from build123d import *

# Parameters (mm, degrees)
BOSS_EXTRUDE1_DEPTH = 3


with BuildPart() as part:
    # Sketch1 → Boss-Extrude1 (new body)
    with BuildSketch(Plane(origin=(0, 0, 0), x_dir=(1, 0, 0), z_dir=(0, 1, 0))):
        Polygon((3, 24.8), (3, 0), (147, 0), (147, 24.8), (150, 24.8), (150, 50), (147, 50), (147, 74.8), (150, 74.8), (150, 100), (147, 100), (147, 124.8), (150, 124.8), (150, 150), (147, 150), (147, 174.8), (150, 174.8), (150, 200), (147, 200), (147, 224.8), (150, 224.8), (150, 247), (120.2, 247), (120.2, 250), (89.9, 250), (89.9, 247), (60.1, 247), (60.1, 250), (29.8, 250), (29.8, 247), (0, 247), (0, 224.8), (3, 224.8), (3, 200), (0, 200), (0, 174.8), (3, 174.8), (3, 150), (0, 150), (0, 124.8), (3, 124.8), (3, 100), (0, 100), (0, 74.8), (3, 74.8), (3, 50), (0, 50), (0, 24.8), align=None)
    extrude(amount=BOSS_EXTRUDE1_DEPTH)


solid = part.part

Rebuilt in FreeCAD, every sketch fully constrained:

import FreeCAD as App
import Part
import Sketcher


def add_polygon(sketch, points):
    """Adds a closed chain of lines whose ends are joined by coincident constraints."""
    first, n = sketch.GeometryCount, len(points)
    for a, b in zip(points, points[1:] + points[:1]):
        sketch.addGeometry(Part.LineSegment(App.Vector(*a, 0), App.Vector(*b, 0)), False)
    for i in range(n):
        sketch.addConstraint(Sketcher.Constraint("Coincident", first + i, 2, first + (i + 1) % n, 1))

doc = App.newDocument("Part")
body = doc.addObject("PartDesign::Body", "Body")

sketch1 = body.newObject("Sketcher::SketchObject", "Sketch")
sketch1.AttachmentSupport = (doc.getObject("XZ_Plane"), [""])
sketch1.MapMode = "FlatFace"
add_polygon(sketch1, [(3, -24.8), (3, 0), (147, 0), (147, -24.8), (150, -24.8), (150, -50), (147, -50), (147, -74.8), (150, -74.8), (150, -100), (147, -100), (147, -124.8), (150, -124.8), (150, -150), (147, -150), (147, -174.8), (150, -174.8), (150, -200), (147, -200), (147, -224.8), (150, -224.8), (150, -247), (120.2, -247), (120.2, -250), (89.9, -250), (89.9, -247), (60.1, -247), (60.1, -250), (29.8, -250), (29.8, -247), (0, -247), (0, -224.8), (3, -224.8), (3, -200), (0, -200), (0, -174.8), (3, -174.8), (3, -150), (0, -150), (0, -124.8), (3, -124.8), (3, -100), (0, -100), (0, -74.8), (3, -74.8), (3, -50), (0, -50), (0, -24.8)])
sketch1.addConstraint([
    Sketcher.Constraint("Vertical", 0),
    Sketcher.Constraint("Horizontal", 1),
    Sketcher.Constraint("Vertical", 2),
    Sketcher.Constraint("Horizontal", 3),
    Sketcher.Constraint("Vertical", 4),
    Sketcher.Constraint("Horizontal", 5),
    Sketcher.Constraint("Vertical", 6),
    Sketcher.Constraint("Horizontal", 7),
    Sketcher.Constraint("Vertical", 8),
    Sketcher.Constraint("Horizontal", 9),
    Sketcher.Constraint("Vertical", 10),
    Sketcher.Constraint("Horizontal", 11),
    Sketcher.Constraint("Vertical", 12),
    Sketcher.Constraint("Horizontal", 13),
    Sketcher.Constraint("Vertical", 14),
    Sketcher.Constraint("Horizontal", 15),
    Sketcher.Constraint("Vertical", 16),
    Sketcher.Constraint("Horizontal", 17),
    Sketcher.Constraint("Vertical", 18),
    Sketcher.Constraint("Horizontal", 19),
    Sketcher.Constraint("Vertical", 20),
    Sketcher.Constraint("Horizontal", 21),
    Sketcher.Constraint("Vertical", 22),
    Sketcher.Constraint("Horizontal", 23),
    Sketcher.Constraint("Vertical", 24),
    Sketcher.Constraint("Horizontal", 25),
    Sketcher.Constraint("Vertical", 26),
    Sketcher.Constraint("Horizontal", 27),
    Sketcher.Constraint("Vertical", 28),
    Sketcher.Constraint("Horizontal", 29),
    Sketcher.Constraint("Vertical", 30),
    Sketcher.Constraint("Horizontal", 31),
    Sketcher.Constraint("Vertical", 32),
    Sketcher.Constraint("Horizontal", 33),
    Sketcher.Constraint("Vertical", 34),
    Sketcher.Constraint("Horizontal", 35),
    Sketcher.Constraint("Vertical", 36),
    Sketcher.Constraint("Horizontal", 37),
    Sketcher.Constraint("Vertical", 38),
    Sketcher.Constraint("Horizontal", 39),
    Sketcher.Constraint("Vertical", 40),
    Sketcher.Constraint("Horizontal", 41),
    Sketcher.Constraint("Vertical", 42),
    Sketcher.Constraint("Horizontal", 43),
    Sketcher.Constraint("Vertical", 44),
    Sketcher.Constraint("Horizontal", 45),
    Sketcher.Constraint("Vertical", 46),
    Sketcher.Constraint("Horizontal", 47),
    Sketcher.Constraint("PointOnObject", 0, 2, -1),
    Sketcher.Constraint("PointOnObject", 29, 2, -2),
    Sketcher.Constraint("PointOnObject", 33, 2, -2),
    Sketcher.Constraint("PointOnObject", 37, 2, -2),
    Sketcher.Constraint("PointOnObject", 41, 2, -2),
    Sketcher.Constraint("PointOnObject", 45, 2, -2),
    Sketcher.Constraint("Horizontal", 21, 2, 24, 2),
    Sketcher.Constraint("Horizontal", 23, 2, 26, 2),
    Sketcher.Constraint("Horizontal", 25, 2, 28, 2),
    Sketcher.Constraint("Horizontal", 19, 2, 30, 2),
    Sketcher.Constraint("Horizontal", 17, 2, 32, 2),
    Sketcher.Constraint("Horizontal", 15, 2, 34, 2),
    Sketcher.Constraint("Horizontal", 13, 2, 36, 2),
    Sketcher.Constraint("Horizontal", 11, 2, 38, 2),
    Sketcher.Constraint("Horizontal", 9, 2, 40, 2),
    Sketcher.Constraint("Horizontal", 7, 2, 42, 2),
    Sketcher.Constraint("Horizontal", 5, 2, 44, 2),
    Sketcher.Constraint("Horizontal", 3, 2, 46, 2),
    Sketcher.Constraint("Vertical", 2, 2, 5, 2),
    Sketcher.Constraint("Vertical", 4, 2, 7, 2),
    Sketcher.Constraint("Vertical", 6, 2, 9, 2),
    Sketcher.Constraint("Vertical", 8, 2, 11, 2),
    Sketcher.Constraint("Vertical", 10, 2, 13, 2),
    Sketcher.Constraint("Vertical", 12, 2, 15, 2),
    Sketcher.Constraint("Vertical", 14, 2, 17, 2),
    Sketcher.Constraint("Vertical", 16, 2, 19, 2),
    Sketcher.Constraint("Vertical", 0, 2, 31, 2),
    Sketcher.Constraint("Vertical", 32, 2, 35, 2),
    Sketcher.Constraint("Vertical", 36, 2, 39, 2),
    Sketcher.Constraint("Vertical", 40, 2, 43, 2),
    Sketcher.Constraint("Equal", 21, 25),
    Sketcher.Constraint("Equal", 23, 27),
    Sketcher.Constraint("Equal", 25, 29),
    Sketcher.Constraint("Equal", 19, 31),
    Sketcher.Constraint("Equal", 2, 6),
    Sketcher.Constraint("Equal", 4, 8),
    Sketcher.Constraint("Equal", 6, 10),
    Sketcher.Constraint("Equal", 8, 12),
    Sketcher.Constraint("Equal", 10, 14),
    Sketcher.Constraint("Equal", 12, 16),
    Sketcher.Constraint("Equal", 14, 18),
    Sketcher.Constraint("Equal", 47, 22),
    Sketcher.Constraint("DistanceX", 1, 1, 1, 2, 144.0),
    Sketcher.Constraint("DistanceX", 3, 1, 3, 2, 3.0),
    Sketcher.Constraint("DistanceX", 21, 2, 21, 1, 29.8),
    Sketcher.Constraint("DistanceY", 0, 1, 0, 2, 24.8),
    Sketcher.Constraint("DistanceY", 4, 2, 4, 1, 25.2),
    Sketcher.Constraint("DistanceY", 20, 2, 20, 1, 22.2),
])
pad1 = body.newObject("PartDesign::Pad", "Pad")
pad1.Profile = sketch1
pad1.Length = 3
pad1.Reversed = True

doc.recompute()
